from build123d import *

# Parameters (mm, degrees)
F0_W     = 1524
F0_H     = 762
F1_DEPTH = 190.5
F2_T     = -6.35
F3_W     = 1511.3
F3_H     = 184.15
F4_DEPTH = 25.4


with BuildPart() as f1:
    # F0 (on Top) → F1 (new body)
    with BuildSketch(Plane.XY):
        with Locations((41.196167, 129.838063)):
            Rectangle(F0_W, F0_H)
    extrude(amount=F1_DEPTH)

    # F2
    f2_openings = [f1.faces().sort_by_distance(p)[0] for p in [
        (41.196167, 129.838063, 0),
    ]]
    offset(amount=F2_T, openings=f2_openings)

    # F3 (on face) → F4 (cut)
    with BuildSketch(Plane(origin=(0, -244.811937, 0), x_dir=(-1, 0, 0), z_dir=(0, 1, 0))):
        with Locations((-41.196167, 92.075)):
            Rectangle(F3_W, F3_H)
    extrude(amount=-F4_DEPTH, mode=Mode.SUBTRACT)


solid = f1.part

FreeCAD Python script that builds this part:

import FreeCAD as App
import Part
import Sketcher
from FreeCAD import Vector
Q = App.Units.Quantity


def faces_at(feature, points):
    """Names of the faces that lie closest to the given points."""
    faces = feature.Shape.Faces
    near = lambda p: min(range(len(faces)), key=lambda i: faces[i].distToShape(Part.Vertex(*p))[0])
    return sorted({f"Face{near(p) + 1}" for p in points})


def add_polygon(sketch, points):
    """Adds a closed chain of lines whose ends are joined by coincident constraints."""
    first, n = sketch.GeometryCount, len(points)
    for a, b in zip(points, points[1:] + points[:1]):
        sketch.addGeometry(Part.LineSegment(App.Vector(*a, 0), App.Vector(*b, 0)), False)
    for i in range(n):
        sketch.addConstraint(Sketcher.Constraint("Coincident", first + i, 2, first + (i + 1) % n, 1))

doc = App.newDocument("Part")
params = doc.addObject("Spreadsheet::Sheet", "Params")
for row, (alias, value) in enumerate([
    ("sketch1_width", "60 in"),
    ("sketch1_height", "30 in"),
    ("pad1_length", "7.5 in"),
    ("thickness_wall", "0.25 in"),
    ("sketch2_width", "59.5 in"),
    ("sketch2_height", "7.25 in"),
    ("pocket1_length", "1 in"),
], start=1):
    params.set(f"A{row}", alias)
    params.set(f"B{row}", "=" + value)
    params.setAlias(f"B{row}", alias)

body = doc.addObject("PartDesign::Body", "Body")

sketch1 = doc.addObject("Sketcher::SketchObject", "Sketch")
body.addObject(sketch1)
sketch1.AttachmentSupport = (doc.XY_Plane, [""])
sketch1.MapMode = "FlatFace"
add_polygon(sketch1, [(-720.803833, 510.838063), (-720.803833, -251.161937), (803.196167, -251.161937), (803.196167, 510.838063)])
sketch1.addConstraint([
    Sketcher.Constraint("Vertical", 0),
    Sketcher.Constraint("Horizontal", 1),
    Sketcher.Constraint("Vertical", 2),
    Sketcher.Constraint("Horizontal", 3),
    Sketcher.Constraint("DistanceX", 1, 1, 1, 2, Q("60 in")),
    Sketcher.Constraint("DistanceY", 0, 2, 0, 1, Q("30 in")),
    Sketcher.Constraint("DistanceX", 0, 2, -1, 1, 720.803833),
    Sketcher.Constraint("DistanceY", 0, 2, -1, 1, 251.161937),
])
sketch1.setExpression("Constraints[8]", "Params.sketch1_width")
sketch1.setExpression("Constraints[9]", "Params.sketch1_height")
pad1 = doc.addObject("PartDesign::Pad", "Pad")
body.addObject(pad1)
pad1.Profile = sketch1
pad1.setExpression("Length", "Params.pad1_length")
doc.recompute()

thickness = doc.addObject("PartDesign::Thickness", "Thickness")
body.addObject(thickness)
thickness.Base = (pad1, faces_at(pad1, [(41.196, 129.838, 0)]))
thickness.setExpression("Value", "Params.thickness_wall")
thickness.Reversed = True
thickness.Join = "Arc"

sketch2 = doc.addObject("Sketcher::SketchObject", "Sketch001")
body.addObject(sketch2)
sketch2.AttachmentSupport = (doc.XZ_Plane, [""])
sketch2.MapMode = "FlatFace"
sketch2.AttachmentOffset = App.Placement(Vector(0, 0, 244.811937), App.Rotation())
add_polygon(sketch2, [(796.846167, 184.15), (796.846167, 0), (-714.453833, 0), (-714.453833, 184.15)])
sketch2.addConstraint([
    Sketcher.Constraint("Vertical", 0),
    Sketcher.Constraint("Horizontal", 1),
    Sketcher.Constraint("Vertical", 2),
    Sketcher.Constraint("Horizontal", 3),
    Sketcher.Constraint("PointOnObject", 0, 2, -1),
    Sketcher.Constraint("DistanceX", 1, 2, 1, 1, Q("59.5 in")),
    Sketcher.Constraint("DistanceY", 0, 2, 0, 1, Q("7.25 in")),
    Sketcher.Constraint("DistanceX", -1, 1, 0, 2, 796.846167),
])
sketch2.setExpression("Constraints[9]", "Params.sketch2_width")
sketch2.setExpression("Constraints[10]", "Params.sketch2_height")
pocket1 = doc.addObject("PartDesign::Pocket", "Pocket")
body.addObject(pocket1)
pocket1.Profile = sketch2
pocket1.setExpression("Length", "Params.pocket1_length")
pocket1.Reversed = True

doc.recompute()
